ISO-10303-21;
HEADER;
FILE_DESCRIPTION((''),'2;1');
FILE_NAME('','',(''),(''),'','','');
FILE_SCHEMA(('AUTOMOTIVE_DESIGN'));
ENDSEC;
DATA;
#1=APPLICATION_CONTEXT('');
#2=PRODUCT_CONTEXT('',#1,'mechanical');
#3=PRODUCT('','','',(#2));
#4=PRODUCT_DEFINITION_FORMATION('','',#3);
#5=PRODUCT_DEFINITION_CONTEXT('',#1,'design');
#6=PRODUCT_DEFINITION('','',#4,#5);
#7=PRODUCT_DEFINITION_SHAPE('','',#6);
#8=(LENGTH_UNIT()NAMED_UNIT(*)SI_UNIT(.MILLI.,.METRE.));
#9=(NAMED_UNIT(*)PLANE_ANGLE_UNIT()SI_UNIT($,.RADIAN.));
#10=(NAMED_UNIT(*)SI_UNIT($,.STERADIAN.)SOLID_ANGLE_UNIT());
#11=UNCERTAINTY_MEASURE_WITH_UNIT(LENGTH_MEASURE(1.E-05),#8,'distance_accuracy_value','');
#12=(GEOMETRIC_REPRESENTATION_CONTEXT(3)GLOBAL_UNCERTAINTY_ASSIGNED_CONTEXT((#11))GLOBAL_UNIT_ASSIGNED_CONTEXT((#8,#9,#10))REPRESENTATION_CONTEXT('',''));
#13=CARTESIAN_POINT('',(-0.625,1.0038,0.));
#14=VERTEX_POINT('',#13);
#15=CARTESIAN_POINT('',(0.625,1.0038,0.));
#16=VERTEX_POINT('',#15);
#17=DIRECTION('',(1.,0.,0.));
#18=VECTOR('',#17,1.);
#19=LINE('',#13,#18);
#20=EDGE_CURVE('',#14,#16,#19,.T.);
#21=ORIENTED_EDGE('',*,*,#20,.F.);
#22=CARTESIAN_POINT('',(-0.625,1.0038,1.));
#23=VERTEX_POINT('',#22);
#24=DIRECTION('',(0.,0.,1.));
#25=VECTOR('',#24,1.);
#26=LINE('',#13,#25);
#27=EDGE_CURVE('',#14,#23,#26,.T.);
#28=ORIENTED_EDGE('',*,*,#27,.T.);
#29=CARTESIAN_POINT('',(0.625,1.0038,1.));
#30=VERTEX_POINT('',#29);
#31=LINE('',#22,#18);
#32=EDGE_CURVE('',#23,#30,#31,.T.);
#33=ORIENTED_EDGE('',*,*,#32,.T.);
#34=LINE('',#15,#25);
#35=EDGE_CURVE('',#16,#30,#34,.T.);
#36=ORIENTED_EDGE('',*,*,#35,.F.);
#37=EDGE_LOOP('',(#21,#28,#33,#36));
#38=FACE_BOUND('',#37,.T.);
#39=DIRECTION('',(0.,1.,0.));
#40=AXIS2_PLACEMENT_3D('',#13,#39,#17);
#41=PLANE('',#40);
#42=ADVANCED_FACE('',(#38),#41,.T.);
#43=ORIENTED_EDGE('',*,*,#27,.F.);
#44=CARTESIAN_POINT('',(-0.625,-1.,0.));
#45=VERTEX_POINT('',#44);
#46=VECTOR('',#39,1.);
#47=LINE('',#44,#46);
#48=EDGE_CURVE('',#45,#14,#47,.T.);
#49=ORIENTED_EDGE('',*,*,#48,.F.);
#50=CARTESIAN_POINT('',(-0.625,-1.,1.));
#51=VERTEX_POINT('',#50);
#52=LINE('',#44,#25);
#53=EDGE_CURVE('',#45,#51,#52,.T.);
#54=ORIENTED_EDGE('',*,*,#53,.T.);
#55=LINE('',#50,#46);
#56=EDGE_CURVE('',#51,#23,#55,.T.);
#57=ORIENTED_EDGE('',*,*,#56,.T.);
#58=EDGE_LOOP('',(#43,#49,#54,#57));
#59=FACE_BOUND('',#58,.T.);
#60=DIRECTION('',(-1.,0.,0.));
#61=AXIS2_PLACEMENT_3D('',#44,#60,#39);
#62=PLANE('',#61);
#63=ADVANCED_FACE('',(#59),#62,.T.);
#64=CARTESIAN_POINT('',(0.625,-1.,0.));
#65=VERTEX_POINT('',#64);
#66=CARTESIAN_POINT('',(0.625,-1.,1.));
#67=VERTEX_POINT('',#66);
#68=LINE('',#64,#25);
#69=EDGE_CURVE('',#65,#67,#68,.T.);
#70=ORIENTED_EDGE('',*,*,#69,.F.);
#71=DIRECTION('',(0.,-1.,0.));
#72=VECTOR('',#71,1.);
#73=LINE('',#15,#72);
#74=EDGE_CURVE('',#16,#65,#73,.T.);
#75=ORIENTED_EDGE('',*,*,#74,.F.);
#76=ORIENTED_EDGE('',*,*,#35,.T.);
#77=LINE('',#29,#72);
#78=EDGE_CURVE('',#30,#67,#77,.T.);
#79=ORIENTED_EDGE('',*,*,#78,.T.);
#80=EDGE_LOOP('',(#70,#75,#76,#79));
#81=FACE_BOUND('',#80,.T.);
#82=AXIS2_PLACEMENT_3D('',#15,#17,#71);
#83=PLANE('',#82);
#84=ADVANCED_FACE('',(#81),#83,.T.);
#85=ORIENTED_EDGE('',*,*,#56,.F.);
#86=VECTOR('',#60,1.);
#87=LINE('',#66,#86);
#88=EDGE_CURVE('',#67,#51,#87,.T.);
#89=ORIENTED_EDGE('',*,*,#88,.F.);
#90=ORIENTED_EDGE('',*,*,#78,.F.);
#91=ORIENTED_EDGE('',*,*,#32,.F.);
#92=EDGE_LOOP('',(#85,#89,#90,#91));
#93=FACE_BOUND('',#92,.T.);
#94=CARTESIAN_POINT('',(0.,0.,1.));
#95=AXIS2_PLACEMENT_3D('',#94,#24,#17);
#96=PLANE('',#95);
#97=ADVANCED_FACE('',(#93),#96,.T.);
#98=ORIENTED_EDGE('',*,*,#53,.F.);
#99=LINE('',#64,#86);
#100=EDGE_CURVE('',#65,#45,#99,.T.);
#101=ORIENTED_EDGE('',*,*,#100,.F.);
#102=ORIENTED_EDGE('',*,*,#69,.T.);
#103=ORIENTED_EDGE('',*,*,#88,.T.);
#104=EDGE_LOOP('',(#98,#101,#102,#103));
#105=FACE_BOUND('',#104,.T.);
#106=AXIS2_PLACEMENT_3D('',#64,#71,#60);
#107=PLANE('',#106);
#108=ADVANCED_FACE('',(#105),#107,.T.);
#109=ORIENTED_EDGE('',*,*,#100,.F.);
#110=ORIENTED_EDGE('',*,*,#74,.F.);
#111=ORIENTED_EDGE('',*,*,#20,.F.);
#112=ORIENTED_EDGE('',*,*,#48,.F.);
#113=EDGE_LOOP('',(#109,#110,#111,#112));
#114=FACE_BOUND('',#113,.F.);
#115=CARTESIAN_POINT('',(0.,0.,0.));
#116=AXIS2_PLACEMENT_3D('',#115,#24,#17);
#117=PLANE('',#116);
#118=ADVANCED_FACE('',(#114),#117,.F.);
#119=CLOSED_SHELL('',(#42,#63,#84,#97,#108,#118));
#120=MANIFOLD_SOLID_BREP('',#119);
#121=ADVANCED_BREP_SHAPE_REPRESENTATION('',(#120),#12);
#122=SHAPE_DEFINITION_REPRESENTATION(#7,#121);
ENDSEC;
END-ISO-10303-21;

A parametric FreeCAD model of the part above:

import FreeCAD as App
import Part
import Sketcher

doc = App.newDocument("Part")
body = doc.addObject("PartDesign::Body", "Body")

sketch1 = body.newObject("Sketcher::SketchObject", "Sketch")
sketch1.AttachmentSupport = (doc.getObject("XY_Plane"), [""])
sketch1.MapMode = "FlatFace"
sketch1.addGeometry([
    Part.LineSegment(App.Vector(0.6, 1, 0), App.Vector(-0.6, 1, 0)),
    Part.LineSegment(App.Vector(-0.6, 1, 0), App.Vector(-0.6, -1, 0)),
    Part.LineSegment(App.Vector(-0.6, -1, 0), App.Vector(0.6, -1, 0)),
    Part.LineSegment(App.Vector(0.6, -1, 0), App.Vector(0.6, 1, 0)),
], False)
sketch1.addConstraint([
    Sketcher.Constraint("Coincident", 0, 2, 1, 1),
    Sketcher.Constraint("Coincident", 1, 2, 2, 1),
    Sketcher.Constraint("Coincident", 2, 2, 3, 1),
    Sketcher.Constraint("Coincident", 3, 2, 0, 1),
    Sketcher.Constraint("Horizontal", 0),
    Sketcher.Constraint("Vertical", 1),
    Sketcher.Constraint("Horizontal", 2),
    Sketcher.Constraint("Vertical", 3),
    Sketcher.Constraint("DistanceY", 1, 2, -1, 1, 1.0),
    Sketcher.Constraint("DistanceX", 0, 2, 0, 1, 1.25),
    Sketcher.Constraint("DistanceY", 1, 2, 1, 1, 2.0038),
    Sketcher.Constraint("DistanceX", 0, 2, -1, 1, 0.625),
])
pad1 = body.newObject("PartDesign::Pad", "Pad")
pad1.Profile = sketch1
pad1.Length = 1

doc.recompute()
